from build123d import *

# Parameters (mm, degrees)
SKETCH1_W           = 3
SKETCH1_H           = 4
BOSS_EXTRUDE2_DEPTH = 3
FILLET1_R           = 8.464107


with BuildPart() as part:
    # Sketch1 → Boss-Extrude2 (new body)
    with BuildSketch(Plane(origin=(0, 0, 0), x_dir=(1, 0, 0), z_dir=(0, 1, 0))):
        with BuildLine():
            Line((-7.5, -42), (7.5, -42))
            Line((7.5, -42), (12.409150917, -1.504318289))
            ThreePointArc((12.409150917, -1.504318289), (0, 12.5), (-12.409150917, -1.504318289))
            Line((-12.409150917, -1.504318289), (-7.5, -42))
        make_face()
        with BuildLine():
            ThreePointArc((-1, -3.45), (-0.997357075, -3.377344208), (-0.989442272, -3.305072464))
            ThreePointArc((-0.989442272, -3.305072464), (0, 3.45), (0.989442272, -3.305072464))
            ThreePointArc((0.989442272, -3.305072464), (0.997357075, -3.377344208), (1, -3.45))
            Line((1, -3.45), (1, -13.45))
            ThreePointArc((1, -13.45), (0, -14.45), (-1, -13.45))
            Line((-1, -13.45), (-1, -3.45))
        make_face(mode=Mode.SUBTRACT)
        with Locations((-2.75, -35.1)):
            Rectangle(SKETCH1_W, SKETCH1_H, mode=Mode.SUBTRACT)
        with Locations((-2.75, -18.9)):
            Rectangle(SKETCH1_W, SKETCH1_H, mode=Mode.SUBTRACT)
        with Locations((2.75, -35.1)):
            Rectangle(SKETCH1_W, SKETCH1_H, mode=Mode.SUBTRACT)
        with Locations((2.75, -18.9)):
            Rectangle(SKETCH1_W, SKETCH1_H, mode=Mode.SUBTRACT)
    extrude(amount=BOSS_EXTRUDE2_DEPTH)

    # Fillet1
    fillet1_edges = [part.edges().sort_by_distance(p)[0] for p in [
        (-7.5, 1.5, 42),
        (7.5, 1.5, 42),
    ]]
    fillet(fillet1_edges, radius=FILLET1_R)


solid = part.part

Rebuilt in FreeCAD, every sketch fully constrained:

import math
import FreeCAD as App
import Part
import Sketcher

V = App.Vector


def edges_at(feature, points):
    """Names of the edges that pass closest to the given points."""
    edges = feature.Shape.Edges
    near = lambda p: min(range(len(edges)), key=lambda i: edges[i].distToShape(Part.Vertex(*p))[0])
    return sorted({f"Edge{near(p) + 1}" for p in points})


def add_polygon(sketch, points):
    """Adds a closed chain of lines whose ends are joined by coincident constraints."""
    first, n = sketch.GeometryCount, len(points)
    for a, b in zip(points, points[1:] + points[:1]):
        sketch.addGeometry(Part.LineSegment(App.Vector(*a, 0), App.Vector(*b, 0)), False)
    for i in range(n):
        sketch.addConstraint(Sketcher.Constraint("Coincident", first + i, 2, first + (i + 1) % n, 1))

doc = App.newDocument("Part")
body = doc.addObject("PartDesign::Body", "Body")

# Sketch on XZ plane
sketch1 = body.newObject("Sketcher::SketchObject", "Sketch")
sketch1.AttachmentSupport = (doc.getObject("XZ_Plane"), [""])
sketch1.MapMode = "FlatFace"
sketch1.addGeometry(Part.LineSegment(V(-7.5, 42, 0), V(7.5, 42, 0)), False)  # 0
sketch1.addGeometry(Part.LineSegment(V(7.5, 42, 0), V(12.41, 1.5, 0)), False)  # 1
sketch1.addGeometry(Part.ArcOfCircle(Part.Circle(V(0, 0, 0), V(0, 0, 1), 12.5), math.radians(173), math.radians(367)), False)  # 2
sketch1.addGeometry(Part.LineSegment(V(-12.41, 1.5, 0), V(-7.5, 42, 0)), False)  # 3
add_polygon(sketch1, [(-1.25, 37.1), (-4.25, 37.1), (-4.25, 33.1), (-1.25, 33.1)])  # lines 4-7
add_polygon(sketch1, [(-1.25, 20.9), (-4.25, 20.9), (-4.25, 16.9), (-1.25, 16.9)])  # lines 8-11
add_polygon(sketch1, [(4.25, 37.1), (1.25, 37.1), (1.25, 33.1), (4.25, 33.1)])  # lines 12-15
add_polygon(sketch1, [(4.25, 20.9), (1.25, 20.9), (1.25, 16.9), (4.25, 16.9)])  # lines 16-19
sketch1.addGeometry(Part.LineSegment(V(-1, 13.45, 0), V(-1, 3.45, 0)), False)  # 20
sketch1.addGeometry(Part.ArcOfCircle(Part.Circle(V(0, 3.45, 0), V(0, 0, 1), 1), math.radians(-180), math.radians(-171.67)), False)  # 21
sketch1.addGeometry(Part.ArcOfCircle(Part.Circle(V(0, 0, 0), V(0, 0, 1), 3.45), math.radians(107), math.radians(433)), False)  # 22
sketch1.addGeometry(Part.ArcOfCircle(Part.Circle(V(0, 3.45, 0), V(0, 0, 1), 1), math.radians(-8.33), math.radians(0)), False)  # 23
sketch1.addGeometry(Part.LineSegment(V(1, 3.45, 0), V(1, 13.45, 0)), False)  # 24
sketch1.addGeometry(Part.ArcOfCircle(Part.Circle(V(0, 13.45, 0), V(0, 0, 1), 1), math.radians(0), math.radians(180)), False)  # 25
sketch1.addConstraint(Sketcher.Constraint("Coincident", 0, 2, 1, 1))
sketch1.addConstraint(Sketcher.Constraint("Tangent", 1, 2, 2, 2))
sketch1.addConstraint(Sketcher.Constraint("Tangent", 2, 1, 3, 1))
sketch1.addConstraint(Sketcher.Constraint("Coincident", 3, 2, 0, 1))
sketch1.addConstraint(Sketcher.Constraint("Tangent", 20, 2, 21, 1))
sketch1.addConstraint(Sketcher.Constraint("Coincident", 21, 2, 22, 1))
sketch1.addConstraint(Sketcher.Constraint("Coincident", 22, 2, 23, 1))
sketch1.addConstraint(Sketcher.Constraint("Tangent", 23, 2, 24, 1))
sketch1.addConstraint(Sketcher.Constraint("Tangent", 24, 2, 25, 1))
sketch1.addConstraint(Sketcher.Constraint("Tangent", 25, 2, 20, 1))
sketch1.addConstraint(Sketcher.Constraint("Horizontal", 0))
sketch1.addConstraint(Sketcher.Constraint("Horizontal", 4))
sketch1.addConstraint(Sketcher.Constraint("Vertical", 5))
sketch1.addConstraint(Sketcher.Constraint("Horizontal", 6))
sketch1.addConstraint(Sketcher.Constraint("Vertical", 7))
sketch1.addConstraint(Sketcher.Constraint("Horizontal", 8))
sketch1.addConstraint(Sketcher.Constraint("Vertical", 9))
sketch1.addConstraint(Sketcher.Constraint("Horizontal", 10))
sketch1.addConstraint(Sketcher.Constraint("Vertical", 11))
sketch1.addConstraint(Sketcher.Constraint("Horizontal", 12))
sketch1.addConstraint(Sketcher.Constraint("Vertical", 13))
sketch1.addConstraint(Sketcher.Constraint("Horizontal", 14))
sketch1.addConstraint(Sketcher.Constraint("Vertical", 15))
sketch1.addConstraint(Sketcher.Constraint("Horizontal", 16))
sketch1.addConstraint(Sketcher.Constraint("Vertical", 17))
sketch1.addConstraint(Sketcher.Constraint("Horizontal", 18))
sketch1.addConstraint(Sketcher.Constraint("Vertical", 19))
sketch1.addConstraint(Sketcher.Constraint("Vertical", 20))
sketch1.addConstraint(Sketcher.Constraint("Vertical", 24))
sketch1.addConstraint(Sketcher.Constraint("Coincident", 2, 3, -1, 1))
sketch1.addConstraint(Sketcher.Constraint("Coincident", 22, 3, -1, 1))
sketch1.addConstraint(Sketcher.Constraint("Coincident", 23, 3, 21, 3))
sketch1.addConstraint(Sketcher.Constraint("Equal", 21, 23))
sketch1.addConstraint(Sketcher.Constraint("Symmetric", 7, 2, 12, 2, -2))
sketch1.addConstraint(Sketcher.Constraint("Symmetric", 5, 2, 14, 2, -2))
sketch1.addConstraint(Sketcher.Constraint("Symmetric", 11, 2, 16, 2, -2))
sketch1.addConstraint(Sketcher.Constraint("Symmetric", 9, 2, 18, 2, -2))
sketch1.addConstraint(Sketcher.Constraint("PointOnObject", 21, 3, -2))
sketch1.addConstraint(Sketcher.Constraint("Horizontal", 1, 2, 2, 1))
sketch1.addConstraint(Sketcher.Constraint("Vertical", 5, 2, 8, 2))
sketch1.addConstraint(Sketcher.Constraint("Vertical", 7, 2, 10, 2))
sketch1.addConstraint(Sketcher.Constraint("Equal", 7, 9))
sketch1.addConstraint(Sketcher.Constraint("Radius", 21, 1.0))
sketch1.addConstraint(Sketcher.Constraint("Radius", 2, 12.5))
sketch1.addConstraint(Sketcher.Constraint("DistanceX", 0, 1, 0, 2, 15.0))
sketch1.addConstraint(Sketcher.Constraint("DistanceX", 4, 2, 4, 1, 3.0))
sketch1.addConstraint(Sketcher.Constraint("DistanceY", 5, 2, 5, 1, 4.0))
sketch1.addConstraint(Sketcher.Constraint("DistanceY", 20, 2, 20, 1, 10.0))
sketch1.addConstraint(Sketcher.Constraint("Radius", 22, 3.45))
sketch1.addConstraint(Sketcher.Constraint("DistanceY", -1, 1, 0, 2, 42.0))
sketch1.addConstraint(Sketcher.Constraint("DistanceY", -1, 1, 4, 2, 37.1))
sketch1.addConstraint(Sketcher.Constraint("DistanceY", -1, 1, 8, 2, 20.9))
sketch1.addConstraint(Sketcher.Constraint("DistanceX", 7, 2, 12, 2, 2.5))
sketch1.addConstraint(Sketcher.Constraint("DistanceY", -1, 1, 21, 3, 3.45))
pad1 = body.newObject("PartDesign::Pad", "Pad")
pad1.Profile = sketch1
pad1.Length = 3
pad1.Reversed = True
doc.recompute()

fillet = body.newObject("PartDesign::Fillet", "Fillet")
fillet.Base = (pad1, edges_at(pad1, [(-7.5, 1.5, 42), (7.5, 1.5, 42)]))
fillet.Radius = 8.464107

doc.recompute()
